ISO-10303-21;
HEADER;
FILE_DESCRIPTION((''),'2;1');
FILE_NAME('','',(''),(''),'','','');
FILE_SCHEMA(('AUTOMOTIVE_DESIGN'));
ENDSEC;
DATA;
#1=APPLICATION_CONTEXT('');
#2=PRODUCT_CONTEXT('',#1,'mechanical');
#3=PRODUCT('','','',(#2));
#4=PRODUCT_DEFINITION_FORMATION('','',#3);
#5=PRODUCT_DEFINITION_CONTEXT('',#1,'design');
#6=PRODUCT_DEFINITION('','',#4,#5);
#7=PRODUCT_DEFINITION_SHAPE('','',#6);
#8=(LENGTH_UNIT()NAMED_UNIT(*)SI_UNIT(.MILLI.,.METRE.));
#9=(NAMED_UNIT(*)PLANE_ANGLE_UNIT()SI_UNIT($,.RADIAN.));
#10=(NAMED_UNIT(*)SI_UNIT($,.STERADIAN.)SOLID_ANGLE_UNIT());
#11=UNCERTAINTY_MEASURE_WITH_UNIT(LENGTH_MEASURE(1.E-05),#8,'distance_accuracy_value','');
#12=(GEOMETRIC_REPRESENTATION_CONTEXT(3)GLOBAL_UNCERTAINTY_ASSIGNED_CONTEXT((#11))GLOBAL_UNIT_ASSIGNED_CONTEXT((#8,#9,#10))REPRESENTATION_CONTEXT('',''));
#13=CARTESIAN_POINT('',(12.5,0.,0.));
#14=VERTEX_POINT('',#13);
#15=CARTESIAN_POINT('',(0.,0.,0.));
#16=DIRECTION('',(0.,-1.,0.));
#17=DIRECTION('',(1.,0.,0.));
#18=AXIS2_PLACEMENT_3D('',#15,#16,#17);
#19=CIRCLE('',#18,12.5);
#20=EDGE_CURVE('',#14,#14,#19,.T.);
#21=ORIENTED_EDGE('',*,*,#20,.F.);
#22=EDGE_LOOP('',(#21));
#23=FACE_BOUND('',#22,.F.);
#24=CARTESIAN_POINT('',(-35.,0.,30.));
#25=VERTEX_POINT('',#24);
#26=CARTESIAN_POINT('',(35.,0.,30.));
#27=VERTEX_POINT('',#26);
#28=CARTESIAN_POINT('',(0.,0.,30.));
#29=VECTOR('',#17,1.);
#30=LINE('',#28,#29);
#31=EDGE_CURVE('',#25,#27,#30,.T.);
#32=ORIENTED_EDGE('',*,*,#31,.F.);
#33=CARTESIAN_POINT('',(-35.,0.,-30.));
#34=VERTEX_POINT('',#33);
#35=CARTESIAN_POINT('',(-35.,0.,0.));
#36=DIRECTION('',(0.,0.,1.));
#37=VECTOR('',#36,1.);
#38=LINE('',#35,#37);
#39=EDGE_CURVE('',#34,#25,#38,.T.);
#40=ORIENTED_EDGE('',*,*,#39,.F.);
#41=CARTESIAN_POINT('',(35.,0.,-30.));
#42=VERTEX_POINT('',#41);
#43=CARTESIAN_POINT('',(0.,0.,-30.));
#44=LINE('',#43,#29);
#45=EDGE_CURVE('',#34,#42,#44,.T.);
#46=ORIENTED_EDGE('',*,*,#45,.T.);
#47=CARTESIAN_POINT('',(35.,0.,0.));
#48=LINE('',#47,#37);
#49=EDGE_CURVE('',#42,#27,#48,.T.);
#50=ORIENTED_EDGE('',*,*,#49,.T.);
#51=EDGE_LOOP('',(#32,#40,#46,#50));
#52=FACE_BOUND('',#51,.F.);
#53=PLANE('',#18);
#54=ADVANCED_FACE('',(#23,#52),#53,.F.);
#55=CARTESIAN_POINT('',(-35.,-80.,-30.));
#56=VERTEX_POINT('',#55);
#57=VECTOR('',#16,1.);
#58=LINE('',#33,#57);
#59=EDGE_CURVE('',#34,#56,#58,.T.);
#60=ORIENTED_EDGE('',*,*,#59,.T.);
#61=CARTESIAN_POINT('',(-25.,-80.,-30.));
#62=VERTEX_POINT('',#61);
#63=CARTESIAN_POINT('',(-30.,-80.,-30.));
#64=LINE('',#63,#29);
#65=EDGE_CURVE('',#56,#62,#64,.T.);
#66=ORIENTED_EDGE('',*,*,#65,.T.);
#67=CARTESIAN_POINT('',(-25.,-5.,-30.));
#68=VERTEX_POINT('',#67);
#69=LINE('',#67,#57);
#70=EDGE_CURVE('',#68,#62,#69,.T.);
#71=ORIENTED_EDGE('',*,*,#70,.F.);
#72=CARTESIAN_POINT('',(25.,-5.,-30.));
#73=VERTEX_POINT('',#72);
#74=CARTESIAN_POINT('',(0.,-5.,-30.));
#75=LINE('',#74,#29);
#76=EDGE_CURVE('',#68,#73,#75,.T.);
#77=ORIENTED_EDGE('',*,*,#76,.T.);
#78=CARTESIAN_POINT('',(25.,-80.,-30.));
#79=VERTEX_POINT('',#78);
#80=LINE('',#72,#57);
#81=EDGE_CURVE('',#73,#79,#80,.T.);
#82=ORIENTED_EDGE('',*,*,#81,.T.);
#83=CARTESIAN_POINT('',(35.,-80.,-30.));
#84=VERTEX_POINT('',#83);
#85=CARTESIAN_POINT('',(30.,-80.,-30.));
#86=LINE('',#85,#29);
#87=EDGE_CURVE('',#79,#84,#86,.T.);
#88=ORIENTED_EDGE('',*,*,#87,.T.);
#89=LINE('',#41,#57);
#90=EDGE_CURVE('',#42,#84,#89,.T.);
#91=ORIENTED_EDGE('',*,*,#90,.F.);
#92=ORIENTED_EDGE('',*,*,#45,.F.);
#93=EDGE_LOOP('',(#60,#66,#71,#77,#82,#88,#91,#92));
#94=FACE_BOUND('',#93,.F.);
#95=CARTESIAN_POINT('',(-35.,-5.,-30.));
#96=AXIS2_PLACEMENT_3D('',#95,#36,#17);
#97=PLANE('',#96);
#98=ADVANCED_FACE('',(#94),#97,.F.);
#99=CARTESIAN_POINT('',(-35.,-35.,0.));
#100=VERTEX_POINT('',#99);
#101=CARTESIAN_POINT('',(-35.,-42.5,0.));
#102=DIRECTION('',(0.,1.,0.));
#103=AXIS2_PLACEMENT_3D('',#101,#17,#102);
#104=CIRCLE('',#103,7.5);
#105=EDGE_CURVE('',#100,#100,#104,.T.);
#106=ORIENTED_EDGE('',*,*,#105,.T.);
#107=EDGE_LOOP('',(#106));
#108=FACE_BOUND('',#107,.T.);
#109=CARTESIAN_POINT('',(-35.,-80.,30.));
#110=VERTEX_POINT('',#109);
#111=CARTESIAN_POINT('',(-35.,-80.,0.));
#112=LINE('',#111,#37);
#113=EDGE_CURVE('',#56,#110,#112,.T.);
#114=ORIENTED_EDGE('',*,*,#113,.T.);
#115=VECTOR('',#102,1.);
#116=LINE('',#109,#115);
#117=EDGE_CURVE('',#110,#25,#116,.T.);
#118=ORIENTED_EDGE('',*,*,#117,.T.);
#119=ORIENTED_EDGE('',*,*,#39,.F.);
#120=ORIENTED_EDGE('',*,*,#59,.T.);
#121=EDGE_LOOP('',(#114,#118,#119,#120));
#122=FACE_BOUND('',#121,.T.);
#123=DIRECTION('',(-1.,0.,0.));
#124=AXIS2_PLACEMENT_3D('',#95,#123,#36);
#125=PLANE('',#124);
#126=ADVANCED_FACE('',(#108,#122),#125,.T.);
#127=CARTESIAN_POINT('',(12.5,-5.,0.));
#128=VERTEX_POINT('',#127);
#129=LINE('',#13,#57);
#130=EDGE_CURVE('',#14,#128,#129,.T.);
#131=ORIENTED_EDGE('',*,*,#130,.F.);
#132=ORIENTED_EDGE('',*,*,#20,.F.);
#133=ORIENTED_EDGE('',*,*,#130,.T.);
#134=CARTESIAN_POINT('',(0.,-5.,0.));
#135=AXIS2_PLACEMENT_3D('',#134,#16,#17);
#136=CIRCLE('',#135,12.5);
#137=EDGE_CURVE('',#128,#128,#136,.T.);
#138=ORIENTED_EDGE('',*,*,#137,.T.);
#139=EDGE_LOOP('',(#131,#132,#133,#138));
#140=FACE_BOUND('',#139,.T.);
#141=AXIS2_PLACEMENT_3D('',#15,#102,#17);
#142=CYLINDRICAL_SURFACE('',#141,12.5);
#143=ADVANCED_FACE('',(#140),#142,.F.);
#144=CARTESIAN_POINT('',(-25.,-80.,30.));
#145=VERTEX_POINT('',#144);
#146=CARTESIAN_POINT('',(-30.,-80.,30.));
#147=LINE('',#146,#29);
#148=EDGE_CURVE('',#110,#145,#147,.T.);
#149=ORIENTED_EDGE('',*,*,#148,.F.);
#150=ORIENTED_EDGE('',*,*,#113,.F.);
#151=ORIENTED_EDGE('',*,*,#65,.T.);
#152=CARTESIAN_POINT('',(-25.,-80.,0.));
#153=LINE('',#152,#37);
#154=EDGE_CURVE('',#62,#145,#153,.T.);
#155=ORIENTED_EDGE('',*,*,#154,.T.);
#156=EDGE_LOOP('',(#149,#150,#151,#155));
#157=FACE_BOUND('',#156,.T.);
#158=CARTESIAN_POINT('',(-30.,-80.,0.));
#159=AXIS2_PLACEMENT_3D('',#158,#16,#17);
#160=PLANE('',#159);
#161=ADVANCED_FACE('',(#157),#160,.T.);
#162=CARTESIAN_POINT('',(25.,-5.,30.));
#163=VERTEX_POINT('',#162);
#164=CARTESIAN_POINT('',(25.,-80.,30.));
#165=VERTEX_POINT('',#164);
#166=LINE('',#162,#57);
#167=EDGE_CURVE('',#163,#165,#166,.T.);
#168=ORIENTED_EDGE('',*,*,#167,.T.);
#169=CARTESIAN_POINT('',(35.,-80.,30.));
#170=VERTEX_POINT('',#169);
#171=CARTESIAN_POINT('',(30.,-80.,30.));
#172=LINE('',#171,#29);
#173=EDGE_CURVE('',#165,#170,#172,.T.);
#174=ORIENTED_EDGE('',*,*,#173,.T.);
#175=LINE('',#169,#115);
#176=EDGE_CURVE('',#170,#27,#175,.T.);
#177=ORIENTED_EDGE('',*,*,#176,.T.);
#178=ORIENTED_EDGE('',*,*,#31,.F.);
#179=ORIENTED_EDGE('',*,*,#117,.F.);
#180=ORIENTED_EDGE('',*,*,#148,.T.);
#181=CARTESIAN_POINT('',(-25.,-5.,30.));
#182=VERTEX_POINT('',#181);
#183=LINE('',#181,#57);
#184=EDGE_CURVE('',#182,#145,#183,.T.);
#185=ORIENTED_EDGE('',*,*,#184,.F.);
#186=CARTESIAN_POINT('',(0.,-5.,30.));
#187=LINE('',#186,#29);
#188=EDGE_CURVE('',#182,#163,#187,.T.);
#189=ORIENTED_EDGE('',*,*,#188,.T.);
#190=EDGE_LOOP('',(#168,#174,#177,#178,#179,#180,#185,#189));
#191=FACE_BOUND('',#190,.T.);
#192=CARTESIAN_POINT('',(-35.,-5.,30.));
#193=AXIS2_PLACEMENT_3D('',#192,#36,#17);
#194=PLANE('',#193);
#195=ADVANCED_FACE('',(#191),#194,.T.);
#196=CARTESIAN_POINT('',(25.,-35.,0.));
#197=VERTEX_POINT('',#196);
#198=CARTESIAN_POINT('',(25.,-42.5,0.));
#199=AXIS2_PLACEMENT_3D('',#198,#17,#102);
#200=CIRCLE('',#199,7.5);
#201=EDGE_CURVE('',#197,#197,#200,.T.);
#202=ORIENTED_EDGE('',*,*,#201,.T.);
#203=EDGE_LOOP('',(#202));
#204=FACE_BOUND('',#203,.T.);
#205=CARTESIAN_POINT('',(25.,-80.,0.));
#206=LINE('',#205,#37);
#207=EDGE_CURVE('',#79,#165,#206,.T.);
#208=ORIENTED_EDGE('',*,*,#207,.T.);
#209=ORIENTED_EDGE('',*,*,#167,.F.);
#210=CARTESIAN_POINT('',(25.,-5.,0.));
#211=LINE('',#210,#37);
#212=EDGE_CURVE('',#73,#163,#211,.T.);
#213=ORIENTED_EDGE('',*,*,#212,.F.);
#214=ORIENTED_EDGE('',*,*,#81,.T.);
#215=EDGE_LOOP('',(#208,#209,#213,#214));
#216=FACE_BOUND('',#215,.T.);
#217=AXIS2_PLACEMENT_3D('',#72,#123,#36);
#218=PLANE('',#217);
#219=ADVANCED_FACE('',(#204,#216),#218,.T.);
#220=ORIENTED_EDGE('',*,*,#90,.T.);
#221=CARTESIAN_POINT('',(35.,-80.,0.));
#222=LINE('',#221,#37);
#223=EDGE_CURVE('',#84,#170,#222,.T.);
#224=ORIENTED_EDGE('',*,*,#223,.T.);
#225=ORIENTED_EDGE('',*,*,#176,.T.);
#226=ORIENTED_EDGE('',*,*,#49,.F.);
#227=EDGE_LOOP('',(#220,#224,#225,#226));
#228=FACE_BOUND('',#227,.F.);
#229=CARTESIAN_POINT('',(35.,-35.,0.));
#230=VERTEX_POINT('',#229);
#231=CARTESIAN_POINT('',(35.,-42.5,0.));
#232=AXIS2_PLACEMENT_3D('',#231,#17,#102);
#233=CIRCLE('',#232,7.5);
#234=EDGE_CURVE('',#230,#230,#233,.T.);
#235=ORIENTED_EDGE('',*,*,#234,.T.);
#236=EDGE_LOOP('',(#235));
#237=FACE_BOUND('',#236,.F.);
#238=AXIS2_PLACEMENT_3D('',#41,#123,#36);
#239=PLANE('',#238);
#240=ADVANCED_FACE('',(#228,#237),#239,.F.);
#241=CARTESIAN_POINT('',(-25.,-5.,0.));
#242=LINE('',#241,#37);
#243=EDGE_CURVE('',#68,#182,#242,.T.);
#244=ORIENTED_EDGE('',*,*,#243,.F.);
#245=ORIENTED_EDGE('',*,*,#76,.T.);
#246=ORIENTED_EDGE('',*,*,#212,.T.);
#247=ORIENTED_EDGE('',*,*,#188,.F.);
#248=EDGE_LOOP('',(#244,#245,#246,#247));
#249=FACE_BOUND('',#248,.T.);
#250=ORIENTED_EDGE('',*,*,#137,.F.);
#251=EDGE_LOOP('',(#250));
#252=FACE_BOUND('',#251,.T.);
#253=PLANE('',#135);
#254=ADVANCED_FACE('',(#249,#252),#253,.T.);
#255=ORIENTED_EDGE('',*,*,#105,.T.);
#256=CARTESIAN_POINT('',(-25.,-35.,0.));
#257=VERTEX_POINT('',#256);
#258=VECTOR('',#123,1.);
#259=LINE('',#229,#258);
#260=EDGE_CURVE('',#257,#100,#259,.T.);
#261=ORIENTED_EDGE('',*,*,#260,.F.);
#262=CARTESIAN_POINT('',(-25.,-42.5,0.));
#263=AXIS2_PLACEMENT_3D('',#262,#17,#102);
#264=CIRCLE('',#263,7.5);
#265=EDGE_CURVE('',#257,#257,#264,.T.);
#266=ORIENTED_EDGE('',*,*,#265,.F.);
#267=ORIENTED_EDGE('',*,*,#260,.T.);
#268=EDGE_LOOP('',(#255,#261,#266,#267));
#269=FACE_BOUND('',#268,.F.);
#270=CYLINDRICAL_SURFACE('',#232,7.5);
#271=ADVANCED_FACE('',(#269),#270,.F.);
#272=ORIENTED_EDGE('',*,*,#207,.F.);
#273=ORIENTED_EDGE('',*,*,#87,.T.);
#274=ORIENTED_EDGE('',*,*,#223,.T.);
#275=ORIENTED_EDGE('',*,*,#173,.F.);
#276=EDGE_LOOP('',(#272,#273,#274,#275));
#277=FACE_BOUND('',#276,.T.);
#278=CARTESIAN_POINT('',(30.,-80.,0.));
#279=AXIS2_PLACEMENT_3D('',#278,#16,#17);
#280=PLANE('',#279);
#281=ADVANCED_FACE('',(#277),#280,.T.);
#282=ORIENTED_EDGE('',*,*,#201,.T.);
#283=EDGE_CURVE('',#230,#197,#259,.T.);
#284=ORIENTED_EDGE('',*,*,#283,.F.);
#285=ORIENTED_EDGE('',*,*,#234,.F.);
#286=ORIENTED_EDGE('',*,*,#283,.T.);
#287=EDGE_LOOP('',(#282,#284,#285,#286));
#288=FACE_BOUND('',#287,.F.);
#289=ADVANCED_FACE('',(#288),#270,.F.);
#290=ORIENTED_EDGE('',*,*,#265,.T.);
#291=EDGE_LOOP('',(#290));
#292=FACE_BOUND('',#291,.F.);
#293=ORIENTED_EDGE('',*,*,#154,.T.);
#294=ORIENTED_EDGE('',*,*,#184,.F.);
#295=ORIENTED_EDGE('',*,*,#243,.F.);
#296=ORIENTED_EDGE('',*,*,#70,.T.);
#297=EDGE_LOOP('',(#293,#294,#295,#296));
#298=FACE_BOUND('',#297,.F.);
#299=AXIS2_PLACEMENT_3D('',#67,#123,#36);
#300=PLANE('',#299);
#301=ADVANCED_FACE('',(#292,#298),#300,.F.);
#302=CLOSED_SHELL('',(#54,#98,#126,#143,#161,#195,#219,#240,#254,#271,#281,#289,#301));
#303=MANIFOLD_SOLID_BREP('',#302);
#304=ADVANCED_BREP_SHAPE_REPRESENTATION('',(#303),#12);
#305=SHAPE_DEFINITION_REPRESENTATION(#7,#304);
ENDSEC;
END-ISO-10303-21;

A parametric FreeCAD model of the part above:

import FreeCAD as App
import Part
import Sketcher
from FreeCAD import Vector

doc = App.newDocument("Part")
body = doc.addObject("PartDesign::Body", "Body")

sketch1 = body.newObject("Sketcher::SketchObject", "Sketch")
sketch1.AttachmentSupport = (doc.getObject("XZ_Plane"), [""])
sketch1.MapMode = "FlatFace"
sketch1.addGeometry(Part.LineSegment(Vector(-35, 30, 0), Vector(-35, -30, 0)), False)
sketch1.addGeometry(Part.LineSegment(Vector(-35, -30, 0), Vector(35, -30, 0)), False)
sketch1.addGeometry(Part.LineSegment(Vector(35, -30, 0), Vector(35, 30, 0)), False)
sketch1.addGeometry(Part.LineSegment(Vector(35, 30, 0), Vector(-35, 30, 0)), False)
sketch1.addGeometry(Part.Circle(Vector(0, 0, 0), Vector(0, 0, 1), 12), False)
sketch1.addConstraint(Sketcher.Constraint("Coincident", 0, 2, 1, 1))
sketch1.addConstraint(Sketcher.Constraint("Coincident", 1, 2, 2, 1))
sketch1.addConstraint(Sketcher.Constraint("Coincident", 2, 2, 3, 1))
sketch1.addConstraint(Sketcher.Constraint("Coincident", 3, 2, 0, 1))
sketch1.addConstraint(Sketcher.Constraint("Vertical", 0))
sketch1.addConstraint(Sketcher.Constraint("Horizontal", 1))
sketch1.addConstraint(Sketcher.Constraint("Vertical", 2))
sketch1.addConstraint(Sketcher.Constraint("Horizontal", 3))
sketch1.addConstraint(Sketcher.Constraint("Coincident", 4, 3, -1, 1))
sketch1.addConstraint(Sketcher.Constraint("Symmetric", 0, 2, 2, 2, -1, 1))
sketch1.addConstraint(Sketcher.Constraint("Diameter", 4, 25.0))
sketch1.addConstraint(Sketcher.Constraint("DistanceX", 1, 1, 1, 2, 70.0))
sketch1.addConstraint(Sketcher.Constraint("DistanceY", 0, 2, 0, 1, 60.0))
pad1 = body.newObject("PartDesign::Pad", "Pad")
pad1.Profile = sketch1
pad1.Length = 5

sketch2 = body.newObject("Sketcher::SketchObject", "Sketch001")
sketch2.AttachmentSupport = (doc.getObject("XZ_Plane"), [""])
sketch2.MapMode = "FlatFace"
sketch2.AttachmentOffset = App.Placement(Vector(0, 0, 5), App.Rotation())
sketch2.addGeometry(Part.LineSegment(Vector(-35, 30, 0), Vector(-35, -30, 0)), False)
sketch2.addGeometry(Part.LineSegment(Vector(-35, -30, 0), Vector(-25, -30, 0)), False)
sketch2.addGeometry(Part.LineSegment(Vector(-25, -30, 0), Vector(-25, 30, 0)), False)
sketch2.addGeometry(Part.LineSegment(Vector(-25, 30, 0), Vector(-35, 30, 0)), False)
sketch2.addGeometry(Part.LineSegment(Vector(25, 30, 0), Vector(25, -30, 0)), False)
sketch2.addGeometry(Part.LineSegment(Vector(25, -30, 0), Vector(35, -30, 0)), False)
sketch2.addGeometry(Part.LineSegment(Vector(35, -30, 0), Vector(35, 30, 0)), False)
sketch2.addGeometry(Part.LineSegment(Vector(35, 30, 0), Vector(25, 30, 0)), False)
sketch2.addConstraint(Sketcher.Constraint("Coincident", 0, 2, 1, 1))
sketch2.addConstraint(Sketcher.Constraint("Coincident", 1, 2, 2, 1))
sketch2.addConstraint(Sketcher.Constraint("Coincident", 2, 2, 3, 1))
sketch2.addConstraint(Sketcher.Constraint("Coincident", 3, 2, 0, 1))
sketch2.addConstraint(Sketcher.Constraint("Coincident", 4, 2, 5, 1))
sketch2.addConstraint(Sketcher.Constraint("Coincident", 5, 2, 6, 1))
sketch2.addConstraint(Sketcher.Constraint("Coincident", 6, 2, 7, 1))
sketch2.addConstraint(Sketcher.Constraint("Coincident", 7, 2, 4, 1))
sketch2.addConstraint(Sketcher.Constraint("Vertical", 0))
sketch2.addConstraint(Sketcher.Constraint("Horizontal", 1))
sketch2.addConstraint(Sketcher.Constraint("Vertical", 2))
sketch2.addConstraint(Sketcher.Constraint("Horizontal", 3))
sketch2.addConstraint(Sketcher.Constraint("Vertical", 4))
sketch2.addConstraint(Sketcher.Constraint("Horizontal", 5))
sketch2.addConstraint(Sketcher.Constraint("Vertical", 6))
sketch2.addConstraint(Sketcher.Constraint("Horizontal", 7))
sketch2.addConstraint(Sketcher.Constraint("Symmetric", 2, 2, 4, 2, -1, 1))
sketch2.addConstraint(Sketcher.Constraint("Symmetric", 0, 2, 6, 2, -1, 1))
sketch2.addConstraint(Sketcher.Constraint("Horizontal", 1, 2, 4, 2))
sketch2.addConstraint(Sketcher.Constraint("DistanceX", 1, 1, 1, 2, 10.0))
sketch2.addConstraint(Sketcher.Constraint("DistanceY", 0, 2, 0, 1, 60.0))
sketch2.addConstraint(Sketcher.Constraint("DistanceX", 0, 2, -1, 1, 35.0))
pad2 = body.newObject("PartDesign::Pad", "Pad001")
pad2.Profile = sketch2
pad2.Length = 75

sketch3 = body.newObject("Sketcher::SketchObject", "Sketch002")
sketch3.AttachmentSupport = (doc.getObject("YZ_Plane"), [""])
sketch3.MapMode = "FlatFace"
sketch3.AttachmentOffset = App.Placement(Vector(0, 0, 35), App.Rotation())
sketch3.addGeometry(Part.Circle(Vector(-42, 0, 0), Vector(0, 0, 1), 8), False)
sketch3.addConstraint(Sketcher.Constraint("PointOnObject", 0, 3, -1))
sketch3.addConstraint(Sketcher.Constraint("Diameter", 0, 15.0))
sketch3.addConstraint(Sketcher.Constraint("DistanceX", 0, 3, -1, 1, 42.5))
pocket1 = body.newObject("PartDesign::Pocket", "Pocket")
pocket1.Profile = sketch3
pocket1.Type = "ThroughAll"

doc.recompute()
